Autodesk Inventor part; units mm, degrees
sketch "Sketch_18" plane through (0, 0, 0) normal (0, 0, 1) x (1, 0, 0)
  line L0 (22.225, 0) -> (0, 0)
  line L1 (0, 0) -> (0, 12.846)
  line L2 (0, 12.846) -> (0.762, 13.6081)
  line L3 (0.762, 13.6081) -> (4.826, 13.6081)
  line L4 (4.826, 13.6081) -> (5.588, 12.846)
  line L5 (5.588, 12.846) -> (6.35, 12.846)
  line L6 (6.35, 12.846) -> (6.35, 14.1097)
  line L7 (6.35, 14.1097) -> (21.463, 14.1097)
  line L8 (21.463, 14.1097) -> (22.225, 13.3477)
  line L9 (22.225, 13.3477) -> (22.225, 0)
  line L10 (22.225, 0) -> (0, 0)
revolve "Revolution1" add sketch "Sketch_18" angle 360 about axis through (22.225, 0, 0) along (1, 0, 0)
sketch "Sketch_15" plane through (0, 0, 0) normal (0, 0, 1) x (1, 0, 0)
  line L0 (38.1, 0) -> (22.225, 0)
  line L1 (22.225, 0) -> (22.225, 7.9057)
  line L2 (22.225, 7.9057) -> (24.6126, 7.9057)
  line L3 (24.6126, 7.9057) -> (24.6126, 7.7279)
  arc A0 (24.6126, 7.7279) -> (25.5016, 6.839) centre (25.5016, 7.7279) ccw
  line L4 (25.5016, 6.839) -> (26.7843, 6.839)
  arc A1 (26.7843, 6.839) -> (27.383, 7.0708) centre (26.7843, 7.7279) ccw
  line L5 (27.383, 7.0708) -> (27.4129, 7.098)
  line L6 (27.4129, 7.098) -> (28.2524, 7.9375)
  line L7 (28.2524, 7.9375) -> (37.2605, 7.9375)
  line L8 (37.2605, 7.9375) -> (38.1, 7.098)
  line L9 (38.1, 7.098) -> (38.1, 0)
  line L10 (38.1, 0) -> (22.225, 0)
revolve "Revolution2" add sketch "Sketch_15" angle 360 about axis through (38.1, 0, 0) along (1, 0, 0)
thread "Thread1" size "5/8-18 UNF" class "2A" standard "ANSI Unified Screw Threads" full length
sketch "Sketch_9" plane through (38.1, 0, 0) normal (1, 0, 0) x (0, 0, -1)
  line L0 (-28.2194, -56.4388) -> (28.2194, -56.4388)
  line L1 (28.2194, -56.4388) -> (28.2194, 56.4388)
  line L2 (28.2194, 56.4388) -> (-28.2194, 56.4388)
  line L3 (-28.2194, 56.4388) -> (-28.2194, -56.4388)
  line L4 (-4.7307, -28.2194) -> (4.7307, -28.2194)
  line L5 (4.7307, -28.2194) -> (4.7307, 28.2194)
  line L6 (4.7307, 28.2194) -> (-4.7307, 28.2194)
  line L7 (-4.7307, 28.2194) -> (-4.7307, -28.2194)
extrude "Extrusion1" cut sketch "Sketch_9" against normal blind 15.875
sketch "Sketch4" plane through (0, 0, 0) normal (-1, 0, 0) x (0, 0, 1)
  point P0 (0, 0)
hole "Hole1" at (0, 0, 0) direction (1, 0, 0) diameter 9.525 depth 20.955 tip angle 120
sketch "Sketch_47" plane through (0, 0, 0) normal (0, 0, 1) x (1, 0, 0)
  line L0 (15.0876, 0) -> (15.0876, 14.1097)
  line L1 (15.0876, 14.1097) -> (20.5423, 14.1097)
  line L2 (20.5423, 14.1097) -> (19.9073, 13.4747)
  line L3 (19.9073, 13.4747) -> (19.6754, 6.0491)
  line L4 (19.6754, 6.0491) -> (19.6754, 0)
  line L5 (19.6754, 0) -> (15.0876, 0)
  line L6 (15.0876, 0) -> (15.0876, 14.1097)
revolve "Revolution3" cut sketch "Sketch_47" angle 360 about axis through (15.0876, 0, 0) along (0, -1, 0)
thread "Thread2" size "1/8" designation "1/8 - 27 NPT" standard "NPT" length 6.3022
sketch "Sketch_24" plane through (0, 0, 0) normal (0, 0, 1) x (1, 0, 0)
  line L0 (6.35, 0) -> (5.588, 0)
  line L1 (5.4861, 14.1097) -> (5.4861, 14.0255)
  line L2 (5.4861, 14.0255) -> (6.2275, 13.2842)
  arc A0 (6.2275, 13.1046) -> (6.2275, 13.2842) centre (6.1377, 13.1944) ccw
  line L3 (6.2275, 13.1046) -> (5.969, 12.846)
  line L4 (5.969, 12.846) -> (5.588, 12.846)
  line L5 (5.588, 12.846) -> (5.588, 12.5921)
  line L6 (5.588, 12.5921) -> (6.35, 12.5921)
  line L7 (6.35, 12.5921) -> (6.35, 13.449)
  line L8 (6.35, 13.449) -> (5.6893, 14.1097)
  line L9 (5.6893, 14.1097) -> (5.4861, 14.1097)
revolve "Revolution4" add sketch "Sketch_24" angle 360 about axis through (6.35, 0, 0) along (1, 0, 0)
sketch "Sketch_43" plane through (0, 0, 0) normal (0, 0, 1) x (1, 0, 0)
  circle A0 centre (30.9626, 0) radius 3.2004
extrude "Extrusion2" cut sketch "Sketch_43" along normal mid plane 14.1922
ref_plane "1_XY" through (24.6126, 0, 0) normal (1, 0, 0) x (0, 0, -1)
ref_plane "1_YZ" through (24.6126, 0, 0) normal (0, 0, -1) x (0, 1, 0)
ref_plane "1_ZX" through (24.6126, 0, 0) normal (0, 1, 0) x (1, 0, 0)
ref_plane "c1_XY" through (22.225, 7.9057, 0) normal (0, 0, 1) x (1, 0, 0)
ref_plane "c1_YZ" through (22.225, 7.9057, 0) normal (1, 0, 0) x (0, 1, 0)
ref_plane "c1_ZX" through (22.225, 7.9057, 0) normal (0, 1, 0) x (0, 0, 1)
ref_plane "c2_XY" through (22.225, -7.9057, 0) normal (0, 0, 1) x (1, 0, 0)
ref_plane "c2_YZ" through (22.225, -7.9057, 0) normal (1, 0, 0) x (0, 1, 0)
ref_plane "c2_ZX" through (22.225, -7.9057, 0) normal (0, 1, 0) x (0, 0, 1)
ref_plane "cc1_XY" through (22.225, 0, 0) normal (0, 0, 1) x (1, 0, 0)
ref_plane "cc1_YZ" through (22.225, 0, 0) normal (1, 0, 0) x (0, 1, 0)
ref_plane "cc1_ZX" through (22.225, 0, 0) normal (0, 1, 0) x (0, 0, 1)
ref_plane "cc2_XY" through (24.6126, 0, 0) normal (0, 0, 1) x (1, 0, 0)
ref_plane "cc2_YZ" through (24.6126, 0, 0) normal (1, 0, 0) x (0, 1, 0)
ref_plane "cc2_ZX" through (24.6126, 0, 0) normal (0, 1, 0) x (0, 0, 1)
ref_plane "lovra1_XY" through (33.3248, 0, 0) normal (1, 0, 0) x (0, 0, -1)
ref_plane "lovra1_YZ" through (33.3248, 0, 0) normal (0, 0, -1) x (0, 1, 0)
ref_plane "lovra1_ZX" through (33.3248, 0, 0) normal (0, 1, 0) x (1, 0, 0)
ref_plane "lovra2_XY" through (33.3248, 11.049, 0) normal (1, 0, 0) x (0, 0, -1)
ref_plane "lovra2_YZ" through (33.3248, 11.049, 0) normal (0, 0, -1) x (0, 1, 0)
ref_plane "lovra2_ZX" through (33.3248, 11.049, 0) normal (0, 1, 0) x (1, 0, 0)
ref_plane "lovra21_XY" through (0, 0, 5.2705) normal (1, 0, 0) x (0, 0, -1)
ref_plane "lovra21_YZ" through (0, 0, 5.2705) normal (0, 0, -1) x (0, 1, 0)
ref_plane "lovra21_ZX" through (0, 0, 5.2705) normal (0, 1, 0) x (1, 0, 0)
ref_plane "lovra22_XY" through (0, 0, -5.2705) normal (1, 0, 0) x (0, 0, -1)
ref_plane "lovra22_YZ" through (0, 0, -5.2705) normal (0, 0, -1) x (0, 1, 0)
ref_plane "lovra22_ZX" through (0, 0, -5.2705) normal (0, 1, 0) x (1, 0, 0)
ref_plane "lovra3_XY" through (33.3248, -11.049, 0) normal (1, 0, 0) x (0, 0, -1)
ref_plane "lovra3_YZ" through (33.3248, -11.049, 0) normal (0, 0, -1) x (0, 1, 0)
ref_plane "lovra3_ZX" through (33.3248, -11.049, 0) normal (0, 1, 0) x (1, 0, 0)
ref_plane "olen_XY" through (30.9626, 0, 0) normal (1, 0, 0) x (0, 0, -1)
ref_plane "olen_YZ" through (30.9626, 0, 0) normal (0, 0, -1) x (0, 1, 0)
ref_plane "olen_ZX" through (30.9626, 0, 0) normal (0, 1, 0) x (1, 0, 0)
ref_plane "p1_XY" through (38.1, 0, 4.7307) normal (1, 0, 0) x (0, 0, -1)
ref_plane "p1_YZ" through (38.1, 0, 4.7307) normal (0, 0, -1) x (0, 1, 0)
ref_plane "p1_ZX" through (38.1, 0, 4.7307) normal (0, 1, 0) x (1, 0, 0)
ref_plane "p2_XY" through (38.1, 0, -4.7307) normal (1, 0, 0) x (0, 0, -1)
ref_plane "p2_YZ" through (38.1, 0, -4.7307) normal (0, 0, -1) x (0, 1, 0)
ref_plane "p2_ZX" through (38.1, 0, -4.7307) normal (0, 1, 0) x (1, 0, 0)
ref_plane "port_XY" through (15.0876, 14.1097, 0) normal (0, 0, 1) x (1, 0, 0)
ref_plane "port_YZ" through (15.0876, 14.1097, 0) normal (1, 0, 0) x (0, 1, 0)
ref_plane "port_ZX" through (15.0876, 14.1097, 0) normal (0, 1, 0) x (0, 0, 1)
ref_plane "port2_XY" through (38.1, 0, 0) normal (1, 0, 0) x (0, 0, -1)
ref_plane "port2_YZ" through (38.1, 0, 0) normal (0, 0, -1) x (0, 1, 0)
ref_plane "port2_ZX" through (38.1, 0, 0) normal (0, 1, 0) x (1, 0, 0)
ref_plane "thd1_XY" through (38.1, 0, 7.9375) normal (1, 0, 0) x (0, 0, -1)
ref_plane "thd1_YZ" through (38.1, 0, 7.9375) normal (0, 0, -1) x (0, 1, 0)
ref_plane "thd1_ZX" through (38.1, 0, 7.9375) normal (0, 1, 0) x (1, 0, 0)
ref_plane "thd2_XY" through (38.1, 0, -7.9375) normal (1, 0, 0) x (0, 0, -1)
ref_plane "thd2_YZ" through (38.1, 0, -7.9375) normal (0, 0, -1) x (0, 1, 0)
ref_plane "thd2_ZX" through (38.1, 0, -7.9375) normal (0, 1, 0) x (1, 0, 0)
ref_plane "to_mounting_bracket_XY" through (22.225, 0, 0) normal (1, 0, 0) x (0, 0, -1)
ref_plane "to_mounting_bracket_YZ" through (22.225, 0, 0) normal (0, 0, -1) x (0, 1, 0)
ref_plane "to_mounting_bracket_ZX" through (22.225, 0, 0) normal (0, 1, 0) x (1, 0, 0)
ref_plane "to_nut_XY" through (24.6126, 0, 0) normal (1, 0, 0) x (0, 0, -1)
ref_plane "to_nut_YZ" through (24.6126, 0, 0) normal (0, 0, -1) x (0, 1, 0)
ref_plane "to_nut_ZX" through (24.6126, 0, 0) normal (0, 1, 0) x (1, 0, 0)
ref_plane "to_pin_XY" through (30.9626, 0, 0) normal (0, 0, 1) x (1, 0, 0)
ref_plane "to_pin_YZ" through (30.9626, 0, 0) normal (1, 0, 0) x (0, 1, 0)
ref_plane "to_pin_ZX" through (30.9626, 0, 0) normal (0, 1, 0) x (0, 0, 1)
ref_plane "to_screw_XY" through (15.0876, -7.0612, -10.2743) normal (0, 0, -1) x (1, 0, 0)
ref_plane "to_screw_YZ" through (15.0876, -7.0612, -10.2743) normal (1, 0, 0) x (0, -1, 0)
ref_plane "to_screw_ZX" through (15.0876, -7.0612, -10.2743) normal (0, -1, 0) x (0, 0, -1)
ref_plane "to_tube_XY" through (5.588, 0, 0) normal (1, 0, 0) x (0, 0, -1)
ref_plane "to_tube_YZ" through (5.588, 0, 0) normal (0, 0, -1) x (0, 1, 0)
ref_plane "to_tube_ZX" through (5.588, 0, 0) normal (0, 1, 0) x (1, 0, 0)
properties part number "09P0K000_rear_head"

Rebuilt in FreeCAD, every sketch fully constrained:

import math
import FreeCAD as App
import Part
import Sketcher

V = App.Vector
Q = App.Units.Quantity


def add_polygon(sketch, points):
    """Adds a closed chain of lines whose ends are joined by coincident constraints."""
    first, n = sketch.GeometryCount, len(points)
    for a, b in zip(points, points[1:] + points[:1]):
        sketch.addGeometry(Part.LineSegment(App.Vector(*a, 0), App.Vector(*b, 0)), False)
    for i in range(n):
        sketch.addConstraint(Sketcher.Constraint("Coincident", first + i, 2, first + (i + 1) % n, 1))

doc = App.newDocument("Part")
body = doc.addObject("PartDesign::Body", "Body")

sketch1 = doc.addObject("Sketcher::SketchObject", "Sketch")
body.addObject(sketch1)
sketch1.AttachmentSupport = (doc.XY_Plane, [""])
sketch1.MapMode = "FlatFace"
add_polygon(sketch1, [(0, 0), (22.225, 0), (22.225, 13.3477), (21.463, 14.1097), (6.35, 14.1097), (6.35, 12.846), (5.588, 12.846), (4.826, 13.6081), (0.762, 13.6081), (0, 12.846)])
sketch1.addConstraint([
    Sketcher.Constraint("Horizontal", 0),
    Sketcher.Constraint("Vertical", 1),
    Sketcher.Constraint("Horizontal", 3),
    Sketcher.Constraint("Vertical", 4),
    Sketcher.Constraint("Horizontal", 5),
    Sketcher.Constraint("Horizontal", 7),
    Sketcher.Constraint("Vertical", 9),
    Sketcher.Constraint("Coincident", 9, 2, -1, 1),
    Sketcher.Constraint("Parallel", 2, 6),
    Sketcher.Constraint("Perpendicular", 6, 8),
    Sketcher.Constraint("Horizontal", 5, 2, 8, 2),
    Sketcher.Constraint("Equal", 2, 6),
    Sketcher.Constraint("Equal", 6, 8),
    Sketcher.Constraint("DistanceX", 5, 2, 5, 1, Q("0.03 in")),
    Sketcher.Constraint("DistanceX", 7, 2, 7, 1, Q("0.16 in")),
    Sketcher.Constraint("DistanceX", 0, 1, 0, 2, Q("0.875 in")),
    Sketcher.Constraint("DistanceX", 3, 2, 3, 1, Q("0.595 in")),
    Sketcher.Constraint("DistanceY", 1, 1, 1, 2, Q("0.5255 in")),
    Sketcher.Constraint("DistanceY", 4, 2, 4, 1, Q("1.2637 mm")),
])
revolution = doc.addObject("PartDesign::Revolution", "Revolution")
body.addObject(revolution)
revolution.Profile = sketch1
revolution.ReferenceAxis = (sketch1, ["H_Axis"])
revolution.Angle = 360

sketch2 = doc.addObject("Sketcher::SketchObject", "Sketch001")
body.addObject(sketch2)
sketch2.AttachmentSupport = (doc.XY_Plane, [""])
sketch2.MapMode = "FlatFace"
sketch2.addGeometry([
    Part.LineSegment(V(22.225, 0, 0), V(38.1, 0, 0)),
    Part.LineSegment(V(38.1, 0, 0), V(38.1, 7.098, 0)),
    Part.LineSegment(V(38.1, 7.098, 0), V(37.2605, 7.9375, 0)),
    Part.LineSegment(V(37.2605, 7.9375, 0), V(28.2524, 7.9375, 0)),
    Part.LineSegment(V(28.2524, 7.9375, 0), V(27.4129, 7.098, 0)),
    Part.LineSegment(V(27.4129, 7.098, 0), V(27.383, 7.0708, 0)),
    Part.ArcOfCircle(Part.Circle(V(26.7843, 7.7279, 0), V(0, 0, 1), 0.8889), math.radians(-90), math.radians(-47.662577)),
    Part.LineSegment(V(26.7843, 6.839, 0), V(25.5016, 6.839, 0)),
    Part.ArcOfCircle(Part.Circle(V(25.5016, 7.7279, 0), V(0, 0, 1), 0.889), math.radians(180), math.radians(270)),
    Part.LineSegment(V(24.6126, 7.7279, 0), V(24.6126, 7.9057, 0)),
    Part.LineSegment(V(24.6126, 7.9057, 0), V(22.225, 7.9057, 0)),
    Part.LineSegment(V(22.225, 7.9057, 0), V(22.225, 0, 0)),
], False)
sketch2.addConstraint([
    Sketcher.Constraint("Coincident", 0, 2, 1, 1),
    Sketcher.Constraint("Coincident", 1, 2, 2, 1),
    Sketcher.Constraint("Coincident", 2, 2, 3, 1),
    Sketcher.Constraint("Coincident", 3, 2, 4, 1),
    Sketcher.Constraint("Coincident", 4, 2, 5, 1),
    Sketcher.Constraint("Coincident", 5, 2, 6, 2),
    Sketcher.Constraint("Tangent", 6, 1, 7, 1),
    Sketcher.Constraint("Tangent", 7, 2, 8, 2),
    Sketcher.Constraint("Tangent", 8, 1, 9, 1),
    Sketcher.Constraint("Coincident", 9, 2, 10, 1),
    Sketcher.Constraint("Coincident", 10, 2, 11, 1),
    Sketcher.Constraint("Coincident", 11, 2, 0, 1),
    Sketcher.Constraint("Horizontal", 0),
    Sketcher.Constraint("Vertical", 1),
    Sketcher.Constraint("Horizontal", 3),
    Sketcher.Constraint("Horizontal", 7),
    Sketcher.Constraint("Vertical", 9),
    Sketcher.Constraint("Horizontal", 10),
    Sketcher.Constraint("Vertical", 11),
    Sketcher.Constraint("Equal", 6, 8),
    Sketcher.Constraint("PointOnObject", 0, 2, -1),
    Sketcher.Constraint("Perpendicular", 2, 4),
    Sketcher.Constraint("Horizontal", 1, 2, 4, 2),
    Sketcher.Constraint("Equal", 2, 4),
    Sketcher.Constraint("Radius", 6, Q("0.035 in")),
    Sketcher.Constraint("DistanceX", -1, 1, 0, 2, Q("1.5 in")),
    Sketcher.Constraint("DistanceX", 0, 1, 0, 2, Q("0.625 in")),
    Sketcher.Constraint("DistanceX", 10, 2, 10, 1, Q("0.094 in")),
    Sketcher.Constraint("DistanceY", 9, 1, 9, 2, Q("0.007 in")),
    Sketcher.Constraint("DistanceX", 7, 2, 7, 1, Q("0.0505 in")),
    Sketcher.Constraint("DistanceY", -1, 1, 2, 2, Q("0.3125 in")),
    Sketcher.Constraint("Distance", 5, Q("0.0016 in")),
    Sketcher.Constraint("DistanceX", 3, 2, 3, 1, Q("9.008 mm")),
    Sketcher.Constraint("DistanceY", 1, 1, 1, 2, Q("7.098 mm")),
    Sketcher.Constraint("DistanceY", 11, 2, 11, 1, Q("7.9057 mm")),
])
revolution2 = doc.addObject("PartDesign::Revolution", "Revolution001")
body.addObject(revolution2)
revolution2.Profile = sketch2
revolution2.ReferenceAxis = (sketch2, ["H_Axis"])
revolution2.Angle = 360

sketch3 = doc.addObject("Sketcher::SketchObject", "Sketch002")
body.addObject(sketch3)
sketch3.AttachmentSupport = (doc.YZ_Plane, [""])
sketch3.MapMode = "FlatFace"
sketch3.AttachmentOffset = App.Placement(V(0, 0, 1.5 * 25.4), App.Rotation())
add_polygon(sketch3, [(56.4388, 28.2194), (-56.4388, 28.2194), (-56.4388, -28.2194), (56.4388, -28.2194)])
add_polygon(sketch3, [(-28.2194, -4.7307), (-28.2194, 4.7307), (28.2194, 4.7307), (28.2194, -4.7307)])
sketch3.addConstraint([
    Sketcher.Constraint("Horizontal", 0),
    Sketcher.Constraint("Vertical", 1),
    Sketcher.Constraint("Horizontal", 2),
    Sketcher.Constraint("Vertical", 3),
    Sketcher.Constraint("Vertical", 4),
    Sketcher.Constraint("Horizontal", 5),
    Sketcher.Constraint("Vertical", 6),
    Sketcher.Constraint("Horizontal", 7),
    Sketcher.Constraint("Symmetric", 0, 2, 2, 2, -1, 1),
    Sketcher.Constraint("Symmetric", 4, 2, 6, 2, -1, 1),
    Sketcher.Constraint("Equal", 7, 1),
    Sketcher.Constraint("DistanceX", 0, 2, 0, 1, Q("4.444 in")),
    Sketcher.Constraint("DistanceX", 5, 1, 5, 2, Q("2.222 in")),
    Sketcher.Constraint("DistanceY", 4, 1, 4, 2, Q("0.3725 in")),
])
pocket1 = doc.addObject("PartDesign::Pocket", "Pocket")
body.addObject(pocket1)
pocket1.Profile = sketch3
pocket1.Length = Q("0.625 in")

sketch4 = doc.addObject("Sketcher::SketchObject", "Sketch003")
body.addObject(sketch4)
sketch4.AttachmentSupport = (doc.YZ_Plane, [""])
sketch4.MapMode = "FlatFace"
sketch4.addGeometry(Part.Circle(V(0, 0, 0), V(0, 0, 1), 4.7625), False)
sketch4.addConstraint([
    Sketcher.Constraint("Coincident", 0, 3, -1, 1),
    Sketcher.Constraint("Diameter", 0, Q("0.375 in")),
])
doc.recompute()
hole = doc.addObject("PartDesign::Hole", "Hole")
body.addObject(hole)
hole.Profile = sketch4
hole.ThreadType = "None"
hole.Diameter = Q("0.375 in")
hole.DepthType = "Dimension"
hole.Depth = Q("0.825 in")
hole.DrillPoint = "Angled"
hole.DrillPointAngle = 120
hole.Reversed = True

sketch5 = doc.addObject("Sketcher::SketchObject", "Sketch004")
body.addObject(sketch5)
sketch5.AttachmentSupport = (doc.XY_Plane, [""])
sketch5.MapMode = "FlatFace"
add_polygon(sketch5, [(15.0876, 14.1097), (15.0876, 0), (19.6754, 0), (19.6754, 6.0491), (19.9073, 13.4747), (20.5423, 14.1097)])
sketch5.addGeometry(Part.LineSegment(V(15.0876, 14.1097, 0), V(15.0876, 0, 0)), True)
sketch5.addConstraint([
    Sketcher.Constraint("Vertical", 0),
    Sketcher.Constraint("Horizontal", 1),
    Sketcher.Constraint("Vertical", 2),
    Sketcher.Constraint("Horizontal", 5),
    Sketcher.Constraint("Vertical", 6),
    Sketcher.Constraint("Coincident", 6, 1, 5, 2),
    Sketcher.Constraint("PointOnObject", 0, 2, -1),
    Sketcher.Constraint("PointOnObject", 6, 2, -1),
    Sketcher.Constraint("Angle", 4, Q("45 deg")),
    Sketcher.Constraint("DistanceY", 0, 2, 0, 1, Q("0.5555 in")),
    Sketcher.Constraint("DistanceX", -1, 1, 0, 2, Q("0.594 in")),
    Sketcher.Constraint("DistanceX", 3, 2, 4, 2, Q("0.025 in")),
    Sketcher.Constraint("Distance", 3, Q("0.2925 in")),
    Sketcher.Constraint("DistanceX", 1, 1, 1, 2, Q("4.5878 mm")),
    Sketcher.Constraint("DistanceX", 5, 2, 5, 1, Q("5.4547 mm")),
])
groove = doc.addObject("PartDesign::Groove", "Groove")
body.addObject(groove)
groove.Profile = sketch5
groove.ReferenceAxis = (sketch5, ["Axis0"])
groove.Angle = 360

sketch6 = doc.addObject("Sketcher::SketchObject", "Sketch005")
body.addObject(sketch6)
sketch6.AttachmentSupport = (doc.XY_Plane, [""])
sketch6.MapMode = "FlatFace"
sketch6.addGeometry([
    Part.LineSegment(V(5.6893, 14.1097, 0), V(5.4861, 14.1097, 0)),
    Part.LineSegment(V(5.4861, 14.1097, 0), V(5.4861, 14.0255, 0)),
    Part.LineSegment(V(5.4861, 14.0255, 0), V(6.2275, 13.2842, 0)),
    Part.ArcOfCircle(Part.Circle(V(6.1377, 13.1944, 0), V(0, 0, 1), 0.126996), math.radians(-45), math.radians(45)),
    Part.LineSegment(V(6.2275, 13.1046, 0), V(5.969, 12.846, 0)),
    Part.LineSegment(V(5.969, 12.846, 0), V(5.588, 12.846, 0)),
    Part.LineSegment(V(5.588, 12.846, 0), V(5.588, 12.5921, 0)),
    Part.LineSegment(V(5.588, 12.5921, 0), V(6.35, 12.5921, 0)),
    Part.LineSegment(V(6.35, 12.5921, 0), V(6.35, 13.449, 0)),
    Part.LineSegment(V(6.35, 13.449, 0), V(5.6893, 14.1097, 0)),
], False)
sketch6.addConstraint([
    Sketcher.Constraint("Coincident", 0, 2, 1, 1),
    Sketcher.Constraint("Coincident", 1, 2, 2, 1),
    Sketcher.Constraint("Tangent", 2, 2, 3, 2),
    Sketcher.Constraint("Tangent", 3, 1, 4, 1),
    Sketcher.Constraint("Coincident", 4, 2, 5, 1),
    Sketcher.Constraint("Coincident", 5, 2, 6, 1),
    Sketcher.Constraint("Coincident", 6, 2, 7, 1),
    Sketcher.Constraint("Coincident", 7, 2, 8, 1),
    Sketcher.Constraint("Coincident", 8, 2, 9, 1),
    Sketcher.Constraint("Coincident", 9, 2, 0, 1),
    Sketcher.Constraint("Horizontal", 0),
    Sketcher.Constraint("Vertical", 1),
    Sketcher.Constraint("Horizontal", 5),
    Sketcher.Constraint("Vertical", 6),
    Sketcher.Constraint("Horizontal", 7),
    Sketcher.Constraint("Vertical", 8),
    Sketcher.Constraint("Perpendicular", 2, 4),
    Sketcher.Constraint("Perpendicular", 4, 9),
    Sketcher.Constraint("Vertical", 2, 2, 3, 1),
    Sketcher.Constraint("Radius", 3, Q("0.005 in")),
    Sketcher.Constraint("DistanceX", 7, 1, 7, 2, Q("0.03 in")),
    Sketcher.Constraint("DistanceY", 6, 2, 6, 1, Q("0.01 in")),
    Sketcher.Constraint("DistanceX", 0, 2, 0, 1, Q("0.008 in")),
    Sketcher.Constraint("DistanceX", 5, 2, 5, 1, Q("0.015 in")),
    Sketcher.Constraint("DistanceX", -1, 1, 5, 2, Q("0.22 in")),
    Sketcher.Constraint("DistanceX", -1, 1, 0, 2, Q("0.216 in")),
    Sketcher.Constraint("DistanceY", -1, 1, 2, 2, Q("0.523 in")),
    Sketcher.Constraint("Distance", 4, Q("0.0144 in")),
    Sketcher.Constraint("DistanceY", 1, 2, 1, 1, Q("0.0842 mm")),
])
revolution3 = doc.addObject("PartDesign::Revolution", "Revolution002")
body.addObject(revolution3)
revolution3.Profile = sketch6
revolution3.ReferenceAxis = (sketch6, ["H_Axis"])
revolution3.Angle = 360

sketch7 = doc.addObject("Sketcher::SketchObject", "Sketch006")
body.addObject(sketch7)
sketch7.AttachmentSupport = (doc.XY_Plane, [""])
sketch7.MapMode = "FlatFace"
sketch7.addGeometry(Part.Circle(V(30.9626, 0, 0), V(0, 0, 1), 3.2004), False)
sketch7.addConstraint([
    Sketcher.Constraint("PointOnObject", 0, 3, -1),
    Sketcher.Constraint("Diameter", 0, Q("0.252 in")),
    Sketcher.Constraint("DistanceX", -1, 1, 0, 3, Q("1.219 in")),
])
pocket2 = doc.addObject("PartDesign::Pocket", "Pocket001")
body.addObject(pocket2)
pocket2.Profile = sketch7
pocket2.Length = 14.1922
pocket2.Midplane = True

doc.recompute()
